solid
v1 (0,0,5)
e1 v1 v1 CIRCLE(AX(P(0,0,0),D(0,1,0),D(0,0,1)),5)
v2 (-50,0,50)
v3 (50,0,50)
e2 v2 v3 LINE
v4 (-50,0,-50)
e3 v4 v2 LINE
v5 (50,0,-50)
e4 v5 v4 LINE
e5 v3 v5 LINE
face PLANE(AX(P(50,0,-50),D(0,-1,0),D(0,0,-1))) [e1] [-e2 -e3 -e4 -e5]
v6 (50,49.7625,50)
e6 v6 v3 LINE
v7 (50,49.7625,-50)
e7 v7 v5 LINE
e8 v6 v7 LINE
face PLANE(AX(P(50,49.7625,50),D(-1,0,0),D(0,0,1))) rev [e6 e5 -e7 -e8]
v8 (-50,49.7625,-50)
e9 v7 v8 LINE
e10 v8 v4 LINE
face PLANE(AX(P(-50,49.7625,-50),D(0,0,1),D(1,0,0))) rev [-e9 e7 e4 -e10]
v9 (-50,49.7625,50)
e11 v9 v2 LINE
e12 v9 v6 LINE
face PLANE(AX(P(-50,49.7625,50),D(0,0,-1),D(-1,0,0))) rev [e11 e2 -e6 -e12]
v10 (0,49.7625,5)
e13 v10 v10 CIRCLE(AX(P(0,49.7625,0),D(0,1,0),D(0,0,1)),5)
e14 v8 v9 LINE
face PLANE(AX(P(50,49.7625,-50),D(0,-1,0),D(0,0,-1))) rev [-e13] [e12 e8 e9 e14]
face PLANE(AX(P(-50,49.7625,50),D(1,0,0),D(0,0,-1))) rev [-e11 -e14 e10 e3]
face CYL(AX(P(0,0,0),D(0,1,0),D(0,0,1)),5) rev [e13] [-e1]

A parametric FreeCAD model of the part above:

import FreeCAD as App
import Part
import Sketcher

V = App.Vector

doc = App.newDocument("Part")
body = doc.addObject("PartDesign::Body", "Body")

# Sketch on XZ plane
sketch1 = body.newObject("Sketcher::SketchObject", "Sketch")
sketch1.AttachmentSupport = (doc.getObject("XZ_Plane"), [""])
sketch1.MapMode = "FlatFace"
sketch1.addGeometry(Part.LineSegment(V(-50, -50, 0), V(-50, 50, 0)), False)
sketch1.addGeometry(Part.LineSegment(V(-50, 50, 0), V(50, 50, 0)), False)
sketch1.addGeometry(Part.LineSegment(V(50, 50, 0), V(50, -50, 0)), False)
sketch1.addGeometry(Part.LineSegment(V(50, -50, 0), V(-50, -50, 0)), False)
sketch1.addConstraint(Sketcher.Constraint("Coincident", 0, 2, 1, 1))
sketch1.addConstraint(Sketcher.Constraint("Coincident", 1, 2, 2, 1))
sketch1.addConstraint(Sketcher.Constraint("Coincident", 2, 2, 3, 1))
sketch1.addConstraint(Sketcher.Constraint("Coincident", 3, 2, 0, 1))
sketch1.addConstraint(Sketcher.Constraint("Vertical", 0))
sketch1.addConstraint(Sketcher.Constraint("Horizontal", 1))
sketch1.addConstraint(Sketcher.Constraint("Vertical", 2))
sketch1.addConstraint(Sketcher.Constraint("Horizontal", 3))
sketch1.addConstraint(Sketcher.Constraint("Symmetric", 0, 2, 2, 2, -1, 1))
sketch1.addConstraint(Sketcher.Constraint("Equal", 3, 0))
sketch1.addConstraint(Sketcher.Constraint("DistanceX", 1, 1, 1, 2, 100.0))
pad1 = body.newObject("PartDesign::Pad", "Pad")
pad1.Profile = sketch1
pad1.Length = 49.7625
pad1.Reversed = True

# Sketch on XZ plane
sketch2 = body.newObject("Sketcher::SketchObject", "Sketch001")
sketch2.AttachmentSupport = (doc.getObject("XZ_Plane"), [""])
sketch2.MapMode = "FlatFace"
sketch2.AttachmentOffset = App.Placement(V(0, 0, -49.7625), App.Rotation())
sketch2.addGeometry(Part.Circle(V(0, 0, 0), V(0, 0, 1), 5), False)
sketch2.addConstraint(Sketcher.Constraint("Coincident", 0, 3, -1, 1))
sketch2.addConstraint(Sketcher.Constraint("Diameter", 0, 10.0))
pocket1 = body.newObject("PartDesign::Pocket", "Pocket")
pocket1.Profile = sketch2
pocket1.Type = "ThroughAll"
pocket1.Reversed = True

doc.recompute()
